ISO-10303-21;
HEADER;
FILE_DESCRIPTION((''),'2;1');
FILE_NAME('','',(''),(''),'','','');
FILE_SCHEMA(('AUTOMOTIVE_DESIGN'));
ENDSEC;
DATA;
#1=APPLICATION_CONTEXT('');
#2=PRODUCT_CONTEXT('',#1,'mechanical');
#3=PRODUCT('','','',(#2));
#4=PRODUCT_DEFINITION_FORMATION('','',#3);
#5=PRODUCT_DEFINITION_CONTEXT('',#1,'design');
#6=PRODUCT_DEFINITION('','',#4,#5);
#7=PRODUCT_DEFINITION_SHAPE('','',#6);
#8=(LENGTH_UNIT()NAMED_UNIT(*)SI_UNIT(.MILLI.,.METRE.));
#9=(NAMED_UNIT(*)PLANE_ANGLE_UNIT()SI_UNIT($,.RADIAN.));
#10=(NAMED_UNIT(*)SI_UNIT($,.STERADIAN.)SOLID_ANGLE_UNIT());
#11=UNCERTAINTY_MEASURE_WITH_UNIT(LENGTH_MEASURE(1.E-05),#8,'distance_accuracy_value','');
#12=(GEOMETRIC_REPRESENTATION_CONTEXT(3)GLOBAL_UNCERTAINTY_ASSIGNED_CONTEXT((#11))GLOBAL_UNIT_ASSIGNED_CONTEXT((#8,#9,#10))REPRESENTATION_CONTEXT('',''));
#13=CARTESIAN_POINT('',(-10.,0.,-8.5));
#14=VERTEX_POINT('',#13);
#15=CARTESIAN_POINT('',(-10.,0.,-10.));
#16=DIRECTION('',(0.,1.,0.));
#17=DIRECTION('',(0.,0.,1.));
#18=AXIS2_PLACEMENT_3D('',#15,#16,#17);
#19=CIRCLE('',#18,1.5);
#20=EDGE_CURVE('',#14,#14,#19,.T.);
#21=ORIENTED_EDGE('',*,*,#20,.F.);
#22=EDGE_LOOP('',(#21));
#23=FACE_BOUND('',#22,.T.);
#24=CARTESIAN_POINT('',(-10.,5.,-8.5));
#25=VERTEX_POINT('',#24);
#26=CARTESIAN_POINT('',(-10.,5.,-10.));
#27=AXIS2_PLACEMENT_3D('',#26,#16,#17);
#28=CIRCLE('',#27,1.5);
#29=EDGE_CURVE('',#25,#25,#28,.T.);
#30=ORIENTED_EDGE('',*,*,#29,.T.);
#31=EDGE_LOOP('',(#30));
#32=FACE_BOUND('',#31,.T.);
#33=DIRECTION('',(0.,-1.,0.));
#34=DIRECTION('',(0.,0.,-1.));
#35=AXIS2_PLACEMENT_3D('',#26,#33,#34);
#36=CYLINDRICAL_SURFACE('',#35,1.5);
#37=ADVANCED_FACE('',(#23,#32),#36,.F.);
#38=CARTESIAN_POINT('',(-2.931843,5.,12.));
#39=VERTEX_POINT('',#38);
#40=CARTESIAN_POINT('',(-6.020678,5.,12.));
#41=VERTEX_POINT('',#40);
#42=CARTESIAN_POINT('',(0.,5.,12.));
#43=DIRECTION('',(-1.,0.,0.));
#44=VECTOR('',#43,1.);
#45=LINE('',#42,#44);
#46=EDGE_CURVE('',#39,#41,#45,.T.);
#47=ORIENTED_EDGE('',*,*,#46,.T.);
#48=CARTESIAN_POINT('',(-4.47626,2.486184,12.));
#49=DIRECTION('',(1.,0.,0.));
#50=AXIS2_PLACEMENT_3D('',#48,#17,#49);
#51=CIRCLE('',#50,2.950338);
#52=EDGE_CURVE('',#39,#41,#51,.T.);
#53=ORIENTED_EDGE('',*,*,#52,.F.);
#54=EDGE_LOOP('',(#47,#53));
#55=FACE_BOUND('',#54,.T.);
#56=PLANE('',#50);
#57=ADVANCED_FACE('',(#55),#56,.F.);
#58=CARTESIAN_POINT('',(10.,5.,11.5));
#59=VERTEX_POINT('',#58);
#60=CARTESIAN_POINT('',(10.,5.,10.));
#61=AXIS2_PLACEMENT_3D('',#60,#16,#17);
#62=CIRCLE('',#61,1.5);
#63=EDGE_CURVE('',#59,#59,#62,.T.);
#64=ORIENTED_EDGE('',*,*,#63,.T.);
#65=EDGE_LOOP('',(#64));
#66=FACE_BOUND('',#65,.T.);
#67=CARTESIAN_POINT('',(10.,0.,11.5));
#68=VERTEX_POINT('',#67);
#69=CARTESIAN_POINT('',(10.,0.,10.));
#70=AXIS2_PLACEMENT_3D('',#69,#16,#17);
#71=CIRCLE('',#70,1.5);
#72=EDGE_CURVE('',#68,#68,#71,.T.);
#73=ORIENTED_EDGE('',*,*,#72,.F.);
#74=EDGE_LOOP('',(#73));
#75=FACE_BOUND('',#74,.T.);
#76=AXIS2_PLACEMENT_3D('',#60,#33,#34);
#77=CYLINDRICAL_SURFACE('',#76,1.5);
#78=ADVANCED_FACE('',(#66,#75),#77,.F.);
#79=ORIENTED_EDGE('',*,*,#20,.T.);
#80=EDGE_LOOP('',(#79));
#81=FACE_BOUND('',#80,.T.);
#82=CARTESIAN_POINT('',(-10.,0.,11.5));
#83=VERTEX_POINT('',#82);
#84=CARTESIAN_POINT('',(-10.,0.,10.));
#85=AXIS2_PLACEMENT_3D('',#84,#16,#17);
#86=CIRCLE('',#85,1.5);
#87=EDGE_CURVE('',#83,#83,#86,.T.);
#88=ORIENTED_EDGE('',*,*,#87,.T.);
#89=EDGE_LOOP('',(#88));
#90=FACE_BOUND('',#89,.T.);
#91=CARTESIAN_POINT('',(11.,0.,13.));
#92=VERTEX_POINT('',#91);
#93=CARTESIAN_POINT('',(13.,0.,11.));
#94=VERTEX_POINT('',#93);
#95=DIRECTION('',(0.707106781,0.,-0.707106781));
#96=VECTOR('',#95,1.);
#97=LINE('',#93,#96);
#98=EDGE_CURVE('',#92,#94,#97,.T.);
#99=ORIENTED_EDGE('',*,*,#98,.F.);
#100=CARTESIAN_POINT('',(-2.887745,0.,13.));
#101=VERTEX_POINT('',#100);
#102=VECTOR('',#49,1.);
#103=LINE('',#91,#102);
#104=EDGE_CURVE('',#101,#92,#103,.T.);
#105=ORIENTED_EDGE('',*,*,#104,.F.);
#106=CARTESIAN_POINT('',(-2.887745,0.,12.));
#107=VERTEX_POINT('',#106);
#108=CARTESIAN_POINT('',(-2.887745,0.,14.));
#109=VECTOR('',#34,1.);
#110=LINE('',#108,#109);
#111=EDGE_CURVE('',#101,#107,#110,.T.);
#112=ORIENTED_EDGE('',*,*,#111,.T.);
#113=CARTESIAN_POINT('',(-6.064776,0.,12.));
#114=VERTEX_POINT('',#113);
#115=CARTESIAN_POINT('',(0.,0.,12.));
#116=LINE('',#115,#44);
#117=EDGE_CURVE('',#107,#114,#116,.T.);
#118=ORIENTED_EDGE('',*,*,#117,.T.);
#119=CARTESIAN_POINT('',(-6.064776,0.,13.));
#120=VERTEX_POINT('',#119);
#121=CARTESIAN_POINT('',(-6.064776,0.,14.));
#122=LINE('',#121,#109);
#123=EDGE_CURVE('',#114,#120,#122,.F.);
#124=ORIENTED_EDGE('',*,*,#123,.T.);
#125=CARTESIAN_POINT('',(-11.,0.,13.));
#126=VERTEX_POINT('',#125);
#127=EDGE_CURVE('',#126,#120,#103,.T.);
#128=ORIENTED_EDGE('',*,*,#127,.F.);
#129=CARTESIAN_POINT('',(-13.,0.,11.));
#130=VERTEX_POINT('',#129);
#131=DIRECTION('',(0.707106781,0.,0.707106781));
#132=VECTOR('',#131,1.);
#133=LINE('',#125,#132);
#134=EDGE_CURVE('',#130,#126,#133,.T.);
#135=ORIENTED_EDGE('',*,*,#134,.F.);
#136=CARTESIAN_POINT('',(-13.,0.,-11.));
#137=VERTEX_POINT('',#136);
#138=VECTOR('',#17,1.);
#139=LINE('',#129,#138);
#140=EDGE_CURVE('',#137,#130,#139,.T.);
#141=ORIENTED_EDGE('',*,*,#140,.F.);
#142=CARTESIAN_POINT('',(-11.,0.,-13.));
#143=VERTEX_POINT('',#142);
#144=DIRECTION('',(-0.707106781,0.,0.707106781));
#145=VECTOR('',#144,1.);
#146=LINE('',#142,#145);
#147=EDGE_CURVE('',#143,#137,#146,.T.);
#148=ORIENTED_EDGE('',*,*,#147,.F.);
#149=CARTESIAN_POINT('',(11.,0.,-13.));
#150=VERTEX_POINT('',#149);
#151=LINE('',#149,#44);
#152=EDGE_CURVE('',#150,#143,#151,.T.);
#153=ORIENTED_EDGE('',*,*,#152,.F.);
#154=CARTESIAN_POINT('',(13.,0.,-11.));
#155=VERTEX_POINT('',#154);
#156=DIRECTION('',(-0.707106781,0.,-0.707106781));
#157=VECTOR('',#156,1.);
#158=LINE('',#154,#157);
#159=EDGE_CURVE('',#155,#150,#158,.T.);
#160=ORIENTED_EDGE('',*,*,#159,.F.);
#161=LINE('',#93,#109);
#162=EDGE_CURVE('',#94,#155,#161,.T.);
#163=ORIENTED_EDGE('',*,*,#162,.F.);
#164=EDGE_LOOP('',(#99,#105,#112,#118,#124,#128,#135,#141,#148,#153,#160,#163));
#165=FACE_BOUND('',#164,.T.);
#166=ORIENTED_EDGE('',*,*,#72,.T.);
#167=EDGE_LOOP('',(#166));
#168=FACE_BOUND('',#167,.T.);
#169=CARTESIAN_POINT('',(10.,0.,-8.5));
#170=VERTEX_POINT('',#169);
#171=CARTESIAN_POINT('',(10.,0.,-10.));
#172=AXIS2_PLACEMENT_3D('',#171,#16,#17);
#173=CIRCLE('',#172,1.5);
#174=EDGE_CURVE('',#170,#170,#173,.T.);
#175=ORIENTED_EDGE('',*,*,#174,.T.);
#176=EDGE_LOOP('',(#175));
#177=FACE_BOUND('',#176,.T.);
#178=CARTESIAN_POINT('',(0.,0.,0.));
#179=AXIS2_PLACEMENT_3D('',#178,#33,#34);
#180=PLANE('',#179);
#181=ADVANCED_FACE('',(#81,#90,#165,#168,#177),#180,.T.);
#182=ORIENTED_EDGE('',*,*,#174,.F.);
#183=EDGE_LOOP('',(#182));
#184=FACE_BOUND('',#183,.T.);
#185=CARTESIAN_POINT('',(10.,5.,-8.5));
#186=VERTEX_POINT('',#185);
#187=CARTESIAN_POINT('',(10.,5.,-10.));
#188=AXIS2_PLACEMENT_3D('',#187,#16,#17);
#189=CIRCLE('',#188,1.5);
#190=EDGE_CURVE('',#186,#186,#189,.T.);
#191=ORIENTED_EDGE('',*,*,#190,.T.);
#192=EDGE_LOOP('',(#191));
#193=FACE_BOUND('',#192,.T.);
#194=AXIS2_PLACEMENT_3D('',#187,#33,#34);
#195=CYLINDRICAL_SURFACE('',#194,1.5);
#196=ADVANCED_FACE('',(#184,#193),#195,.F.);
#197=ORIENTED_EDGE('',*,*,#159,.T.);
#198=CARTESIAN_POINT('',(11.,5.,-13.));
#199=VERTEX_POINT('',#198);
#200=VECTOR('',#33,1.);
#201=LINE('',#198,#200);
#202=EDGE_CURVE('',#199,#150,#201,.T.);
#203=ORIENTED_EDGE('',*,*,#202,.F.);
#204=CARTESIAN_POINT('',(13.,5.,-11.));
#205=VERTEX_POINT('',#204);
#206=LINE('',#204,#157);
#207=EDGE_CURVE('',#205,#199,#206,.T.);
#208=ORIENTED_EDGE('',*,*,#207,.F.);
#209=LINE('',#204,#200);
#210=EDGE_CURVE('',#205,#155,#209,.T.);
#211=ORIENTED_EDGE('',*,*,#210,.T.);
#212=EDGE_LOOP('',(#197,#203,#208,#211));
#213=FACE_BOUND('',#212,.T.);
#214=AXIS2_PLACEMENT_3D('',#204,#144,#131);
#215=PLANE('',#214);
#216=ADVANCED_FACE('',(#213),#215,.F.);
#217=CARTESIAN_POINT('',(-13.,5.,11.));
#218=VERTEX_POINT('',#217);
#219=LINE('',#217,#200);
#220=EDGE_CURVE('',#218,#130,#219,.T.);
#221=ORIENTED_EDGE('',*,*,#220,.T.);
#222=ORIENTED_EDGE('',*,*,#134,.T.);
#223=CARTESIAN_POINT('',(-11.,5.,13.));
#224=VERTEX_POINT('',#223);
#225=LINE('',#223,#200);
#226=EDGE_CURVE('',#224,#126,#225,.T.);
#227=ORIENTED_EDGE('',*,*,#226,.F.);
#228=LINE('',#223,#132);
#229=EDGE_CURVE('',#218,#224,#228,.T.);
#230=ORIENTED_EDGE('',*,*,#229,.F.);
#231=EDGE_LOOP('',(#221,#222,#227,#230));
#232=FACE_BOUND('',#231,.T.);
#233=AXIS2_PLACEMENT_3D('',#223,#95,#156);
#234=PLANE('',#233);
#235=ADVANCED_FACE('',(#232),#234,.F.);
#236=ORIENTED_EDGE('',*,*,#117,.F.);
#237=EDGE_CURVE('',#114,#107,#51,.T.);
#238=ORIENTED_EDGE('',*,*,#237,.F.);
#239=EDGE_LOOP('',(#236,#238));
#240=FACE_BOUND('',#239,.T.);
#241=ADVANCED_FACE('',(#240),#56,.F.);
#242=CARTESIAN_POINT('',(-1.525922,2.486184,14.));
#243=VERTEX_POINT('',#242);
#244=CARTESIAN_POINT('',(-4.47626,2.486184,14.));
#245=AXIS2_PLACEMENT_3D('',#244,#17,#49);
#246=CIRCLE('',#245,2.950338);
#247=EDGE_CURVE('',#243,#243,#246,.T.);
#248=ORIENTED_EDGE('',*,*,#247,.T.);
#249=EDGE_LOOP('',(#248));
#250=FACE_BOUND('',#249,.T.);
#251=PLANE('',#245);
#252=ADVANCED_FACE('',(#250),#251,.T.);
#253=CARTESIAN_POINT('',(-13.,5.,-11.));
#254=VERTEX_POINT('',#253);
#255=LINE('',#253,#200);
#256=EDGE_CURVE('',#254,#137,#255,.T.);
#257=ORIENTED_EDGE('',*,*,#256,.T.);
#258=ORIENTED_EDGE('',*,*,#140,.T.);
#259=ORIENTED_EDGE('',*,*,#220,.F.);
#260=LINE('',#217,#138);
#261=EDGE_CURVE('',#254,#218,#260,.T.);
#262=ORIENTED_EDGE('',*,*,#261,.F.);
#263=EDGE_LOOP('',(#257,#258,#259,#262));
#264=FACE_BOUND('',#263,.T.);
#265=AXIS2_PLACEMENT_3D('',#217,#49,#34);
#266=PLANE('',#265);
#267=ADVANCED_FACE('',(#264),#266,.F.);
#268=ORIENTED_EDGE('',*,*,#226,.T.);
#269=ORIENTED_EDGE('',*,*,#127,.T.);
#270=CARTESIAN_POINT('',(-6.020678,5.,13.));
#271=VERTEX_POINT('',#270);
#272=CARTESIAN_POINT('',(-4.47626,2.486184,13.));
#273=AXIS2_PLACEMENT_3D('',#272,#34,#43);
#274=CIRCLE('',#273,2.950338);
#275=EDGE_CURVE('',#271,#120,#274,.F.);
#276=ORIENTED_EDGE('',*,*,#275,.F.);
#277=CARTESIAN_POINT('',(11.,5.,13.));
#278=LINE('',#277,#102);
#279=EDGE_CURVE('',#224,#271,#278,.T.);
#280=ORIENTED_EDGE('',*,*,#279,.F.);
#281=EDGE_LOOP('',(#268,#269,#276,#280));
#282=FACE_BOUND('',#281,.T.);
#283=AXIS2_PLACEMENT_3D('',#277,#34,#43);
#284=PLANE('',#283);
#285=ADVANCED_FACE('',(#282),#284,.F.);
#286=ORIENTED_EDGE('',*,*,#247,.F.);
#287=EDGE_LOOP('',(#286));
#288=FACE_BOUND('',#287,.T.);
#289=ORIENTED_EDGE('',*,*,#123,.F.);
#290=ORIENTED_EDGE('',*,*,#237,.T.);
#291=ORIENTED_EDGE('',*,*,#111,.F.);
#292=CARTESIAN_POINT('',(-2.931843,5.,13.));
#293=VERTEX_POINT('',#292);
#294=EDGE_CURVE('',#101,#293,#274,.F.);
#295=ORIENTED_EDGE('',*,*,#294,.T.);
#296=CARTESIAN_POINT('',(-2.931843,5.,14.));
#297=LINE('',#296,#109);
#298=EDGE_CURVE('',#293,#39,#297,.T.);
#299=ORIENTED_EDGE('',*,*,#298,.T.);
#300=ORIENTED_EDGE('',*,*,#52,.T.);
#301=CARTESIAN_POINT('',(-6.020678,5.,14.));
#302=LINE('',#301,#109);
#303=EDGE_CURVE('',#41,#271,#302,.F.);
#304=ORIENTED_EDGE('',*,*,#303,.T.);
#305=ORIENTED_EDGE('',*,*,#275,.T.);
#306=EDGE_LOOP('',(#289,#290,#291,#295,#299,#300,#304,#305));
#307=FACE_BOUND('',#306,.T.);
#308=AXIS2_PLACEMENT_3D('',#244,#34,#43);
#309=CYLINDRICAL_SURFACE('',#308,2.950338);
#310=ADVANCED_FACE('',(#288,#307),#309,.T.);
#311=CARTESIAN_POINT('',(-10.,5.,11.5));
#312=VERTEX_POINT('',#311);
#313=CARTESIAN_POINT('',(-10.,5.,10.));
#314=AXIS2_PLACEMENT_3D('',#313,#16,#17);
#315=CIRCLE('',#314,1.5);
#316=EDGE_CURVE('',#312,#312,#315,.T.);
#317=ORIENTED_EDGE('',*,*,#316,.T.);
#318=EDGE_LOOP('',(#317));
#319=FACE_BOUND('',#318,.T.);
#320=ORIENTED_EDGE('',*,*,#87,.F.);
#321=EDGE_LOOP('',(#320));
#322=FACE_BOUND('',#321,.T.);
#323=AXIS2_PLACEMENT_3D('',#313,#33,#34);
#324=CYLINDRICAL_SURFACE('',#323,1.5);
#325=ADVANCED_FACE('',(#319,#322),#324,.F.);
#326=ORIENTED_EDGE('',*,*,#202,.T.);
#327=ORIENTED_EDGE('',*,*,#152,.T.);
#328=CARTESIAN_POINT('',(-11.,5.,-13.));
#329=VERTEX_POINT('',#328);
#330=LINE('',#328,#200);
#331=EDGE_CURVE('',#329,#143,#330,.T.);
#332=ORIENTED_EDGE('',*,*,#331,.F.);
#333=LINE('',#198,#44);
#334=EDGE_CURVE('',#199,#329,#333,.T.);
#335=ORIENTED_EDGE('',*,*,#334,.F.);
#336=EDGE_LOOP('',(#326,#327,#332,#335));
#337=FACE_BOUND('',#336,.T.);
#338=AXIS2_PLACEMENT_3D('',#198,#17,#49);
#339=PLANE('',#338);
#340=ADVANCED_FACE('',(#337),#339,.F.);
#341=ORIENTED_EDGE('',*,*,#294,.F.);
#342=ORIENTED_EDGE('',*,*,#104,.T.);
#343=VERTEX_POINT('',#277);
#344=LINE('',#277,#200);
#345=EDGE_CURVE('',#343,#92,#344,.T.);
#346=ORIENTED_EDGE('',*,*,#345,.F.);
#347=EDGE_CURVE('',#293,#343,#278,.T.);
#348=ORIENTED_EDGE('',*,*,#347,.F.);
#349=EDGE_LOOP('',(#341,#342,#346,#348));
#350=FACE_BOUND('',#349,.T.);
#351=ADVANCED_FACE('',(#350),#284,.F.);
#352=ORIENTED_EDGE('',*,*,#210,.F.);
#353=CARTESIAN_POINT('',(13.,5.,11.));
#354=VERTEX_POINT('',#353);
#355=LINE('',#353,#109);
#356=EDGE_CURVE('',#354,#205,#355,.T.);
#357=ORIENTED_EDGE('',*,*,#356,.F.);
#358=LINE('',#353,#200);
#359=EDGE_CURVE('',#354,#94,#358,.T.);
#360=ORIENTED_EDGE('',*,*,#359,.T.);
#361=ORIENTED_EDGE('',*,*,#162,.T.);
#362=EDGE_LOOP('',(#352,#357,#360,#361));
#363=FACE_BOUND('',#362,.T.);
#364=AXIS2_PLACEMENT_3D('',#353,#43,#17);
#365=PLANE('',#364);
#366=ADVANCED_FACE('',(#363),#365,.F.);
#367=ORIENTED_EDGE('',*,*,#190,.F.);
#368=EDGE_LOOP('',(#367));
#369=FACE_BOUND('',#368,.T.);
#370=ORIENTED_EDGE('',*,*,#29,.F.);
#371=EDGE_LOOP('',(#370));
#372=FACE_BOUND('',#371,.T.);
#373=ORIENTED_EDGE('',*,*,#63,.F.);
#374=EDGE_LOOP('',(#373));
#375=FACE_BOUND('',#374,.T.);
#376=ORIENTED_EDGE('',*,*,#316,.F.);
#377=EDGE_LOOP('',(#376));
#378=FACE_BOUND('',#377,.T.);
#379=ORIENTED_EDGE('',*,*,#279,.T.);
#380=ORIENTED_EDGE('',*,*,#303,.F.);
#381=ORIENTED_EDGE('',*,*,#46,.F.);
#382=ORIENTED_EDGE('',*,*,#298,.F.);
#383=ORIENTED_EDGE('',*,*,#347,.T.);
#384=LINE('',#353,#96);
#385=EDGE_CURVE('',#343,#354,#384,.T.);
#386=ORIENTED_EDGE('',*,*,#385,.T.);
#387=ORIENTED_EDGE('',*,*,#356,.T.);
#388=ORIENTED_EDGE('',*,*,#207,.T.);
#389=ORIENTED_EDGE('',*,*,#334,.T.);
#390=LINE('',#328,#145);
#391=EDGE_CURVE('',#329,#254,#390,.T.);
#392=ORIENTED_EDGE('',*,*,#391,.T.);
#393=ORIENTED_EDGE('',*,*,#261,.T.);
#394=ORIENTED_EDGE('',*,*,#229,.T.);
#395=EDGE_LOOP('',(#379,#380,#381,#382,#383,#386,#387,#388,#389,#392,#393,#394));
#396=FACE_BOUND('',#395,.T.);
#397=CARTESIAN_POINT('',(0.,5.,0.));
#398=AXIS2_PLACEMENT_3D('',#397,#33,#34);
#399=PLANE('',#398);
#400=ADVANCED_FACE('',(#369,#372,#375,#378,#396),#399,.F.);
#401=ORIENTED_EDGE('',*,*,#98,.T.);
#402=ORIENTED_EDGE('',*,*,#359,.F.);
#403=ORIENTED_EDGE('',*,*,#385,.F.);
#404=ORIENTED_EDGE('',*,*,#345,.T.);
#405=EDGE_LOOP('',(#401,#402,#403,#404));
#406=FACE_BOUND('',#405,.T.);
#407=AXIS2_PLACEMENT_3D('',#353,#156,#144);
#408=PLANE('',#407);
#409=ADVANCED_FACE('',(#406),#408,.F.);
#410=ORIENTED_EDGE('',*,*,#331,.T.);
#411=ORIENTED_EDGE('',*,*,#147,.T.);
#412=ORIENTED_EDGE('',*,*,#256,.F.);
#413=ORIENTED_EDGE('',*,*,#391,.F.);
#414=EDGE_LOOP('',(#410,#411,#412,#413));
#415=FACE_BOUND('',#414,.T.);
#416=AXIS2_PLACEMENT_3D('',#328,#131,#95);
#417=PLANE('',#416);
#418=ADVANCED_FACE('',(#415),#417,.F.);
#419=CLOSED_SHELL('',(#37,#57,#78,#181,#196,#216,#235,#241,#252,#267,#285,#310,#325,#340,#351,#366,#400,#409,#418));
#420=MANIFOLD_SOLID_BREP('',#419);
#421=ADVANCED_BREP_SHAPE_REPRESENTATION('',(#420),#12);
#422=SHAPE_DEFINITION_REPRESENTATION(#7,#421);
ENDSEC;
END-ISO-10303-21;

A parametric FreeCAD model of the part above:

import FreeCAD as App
import Part
import Sketcher

doc = App.newDocument("Part")
body = doc.addObject("PartDesign::Body", "Body")

sketch1 = doc.addObject("Sketcher::SketchObject", "Sketch")
body.addObject(sketch1)
sketch1.AttachmentSupport = (doc.XZ_Plane, [""])
sketch1.MapMode = "FlatFace"
sketch1.addGeometry(Part.LineSegment(App.Vector(-11, -13, 0), App.Vector(-13, -11, 0)), False)
sketch1.addGeometry(Part.LineSegment(App.Vector(-13, -11, 0), App.Vector(-13, 11, 0)), False)
sketch1.addGeometry(Part.LineSegment(App.Vector(-13, 11, 0), App.Vector(-11, 13, 0)), False)
sketch1.addGeometry(Part.LineSegment(App.Vector(-11, 13, 0), App.Vector(11, 13, 0)), False)
sketch1.addGeometry(Part.LineSegment(App.Vector(11, 13, 0), App.Vector(13, 11, 0)), False)
sketch1.addGeometry(Part.LineSegment(App.Vector(13, 11, 0), App.Vector(13, -11, 0)), False)
sketch1.addGeometry(Part.LineSegment(App.Vector(13, -11, 0), App.Vector(11, -13, 0)), False)
sketch1.addGeometry(Part.LineSegment(App.Vector(11, -13, 0), App.Vector(-11, -13, 0)), False)
sketch1.addGeometry(Part.Circle(App.Vector(-10, 10, 0), App.Vector(0, 0, 1), 1.5), False)
sketch1.addGeometry(Part.Circle(App.Vector(10, 10, 0), App.Vector(0, 0, 1), 1.5), False)
sketch1.addGeometry(Part.Circle(App.Vector(-10, -10, 0), App.Vector(0, 0, 1), 1.5), False)
sketch1.addGeometry(Part.Circle(App.Vector(10, -10, 0), App.Vector(0, 0, 1), 1.5), False)
sketch1.addConstraint(Sketcher.Constraint("Coincident", 0, 2, 1, 1))
sketch1.addConstraint(Sketcher.Constraint("Coincident", 1, 2, 2, 1))
sketch1.addConstraint(Sketcher.Constraint("Coincident", 2, 2, 3, 1))
sketch1.addConstraint(Sketcher.Constraint("Coincident", 3, 2, 4, 1))
sketch1.addConstraint(Sketcher.Constraint("Coincident", 4, 2, 5, 1))
sketch1.addConstraint(Sketcher.Constraint("Coincident", 5, 2, 6, 1))
sketch1.addConstraint(Sketcher.Constraint("Coincident", 6, 2, 7, 1))
sketch1.addConstraint(Sketcher.Constraint("Coincident", 7, 2, 0, 1))
sketch1.addConstraint(Sketcher.Constraint("Vertical", 1))
sketch1.addConstraint(Sketcher.Constraint("Horizontal", 3))
sketch1.addConstraint(Sketcher.Constraint("Vertical", 5))
sketch1.addConstraint(Sketcher.Constraint("Horizontal", 7))
sketch1.addConstraint(Sketcher.Constraint("Equal", 8, 9))
sketch1.addConstraint(Sketcher.Constraint("Equal", 9, 10))
sketch1.addConstraint(Sketcher.Constraint("Equal", 10, 11))
sketch1.addConstraint(Sketcher.Constraint("Symmetric", 9, 3, 10, 3, -1, 1))
sketch1.addConstraint(Sketcher.Constraint("Symmetric", 8, 3, 11, 3, -1, 1))
sketch1.addConstraint(Sketcher.Constraint("Symmetric", 0, 2, 4, 2, -1, 1))
sketch1.addConstraint(Sketcher.Constraint("Symmetric", 2, 2, 6, 2, -1, 1))
sketch1.addConstraint(Sketcher.Constraint("Symmetric", 8, 3, 9, 3, -2))
sketch1.addConstraint(Sketcher.Constraint("Perpendicular", 0, 2))
sketch1.addConstraint(Sketcher.Constraint("Perpendicular", 2, 4))
sketch1.addConstraint(Sketcher.Constraint("Perpendicular", 4, 6))
sketch1.addConstraint(Sketcher.Constraint("Horizontal", 1, 2, 4, 2))
sketch1.addConstraint(Sketcher.Constraint("Vertical", 3, 2, 6, 2))
sketch1.addConstraint(Sketcher.Constraint("Equal", 7, 1))
sketch1.addConstraint(Sketcher.Constraint("Diameter", 8, 3.0))
sketch1.addConstraint(Sketcher.Constraint("DistanceX", 3, 1, 3, 2, 22.0))
sketch1.addConstraint(Sketcher.Constraint("DistanceX", 8, 3, -1, 1, 10.0))
sketch1.addConstraint(Sketcher.Constraint("DistanceY", -1, 1, 8, 3, 10.0))
sketch1.addConstraint(Sketcher.Constraint("DistanceX", 0, 2, -1, 1, 13.0))
pad1 = doc.addObject("PartDesign::Pad", "Pad")
body.addObject(pad1)
pad1.Profile = sketch1
pad1.Length = 5
pad1.Reversed = True

sketch2 = doc.addObject("Sketcher::SketchObject", "Sketch001")
body.addObject(sketch2)
sketch2.AttachmentSupport = (doc.XY_Plane, [""])
sketch2.MapMode = "FlatFace"
sketch2.AttachmentOffset = App.Placement(App.Vector(0, 0, 13), App.Rotation())
sketch2.addGeometry(Part.Circle(App.Vector(-4.47626, 2.486184, 0), App.Vector(0, 0, 1), 2.950338), False)
sketch2.addConstraint(Sketcher.Constraint("Diameter", 0, 5.900676))
sketch2.addConstraint(Sketcher.Constraint("DistanceX", 0, 3, -1, 1, 4.47626))
sketch2.addConstraint(Sketcher.Constraint("DistanceY", -1, 1, 0, 3, 2.486184))
pad2 = doc.addObject("PartDesign::Pad", "Pad001")
body.addObject(pad2)
pad2.Profile = sketch2
pad2.Length = 2
pad2.Midplane = True

doc.recompute()
